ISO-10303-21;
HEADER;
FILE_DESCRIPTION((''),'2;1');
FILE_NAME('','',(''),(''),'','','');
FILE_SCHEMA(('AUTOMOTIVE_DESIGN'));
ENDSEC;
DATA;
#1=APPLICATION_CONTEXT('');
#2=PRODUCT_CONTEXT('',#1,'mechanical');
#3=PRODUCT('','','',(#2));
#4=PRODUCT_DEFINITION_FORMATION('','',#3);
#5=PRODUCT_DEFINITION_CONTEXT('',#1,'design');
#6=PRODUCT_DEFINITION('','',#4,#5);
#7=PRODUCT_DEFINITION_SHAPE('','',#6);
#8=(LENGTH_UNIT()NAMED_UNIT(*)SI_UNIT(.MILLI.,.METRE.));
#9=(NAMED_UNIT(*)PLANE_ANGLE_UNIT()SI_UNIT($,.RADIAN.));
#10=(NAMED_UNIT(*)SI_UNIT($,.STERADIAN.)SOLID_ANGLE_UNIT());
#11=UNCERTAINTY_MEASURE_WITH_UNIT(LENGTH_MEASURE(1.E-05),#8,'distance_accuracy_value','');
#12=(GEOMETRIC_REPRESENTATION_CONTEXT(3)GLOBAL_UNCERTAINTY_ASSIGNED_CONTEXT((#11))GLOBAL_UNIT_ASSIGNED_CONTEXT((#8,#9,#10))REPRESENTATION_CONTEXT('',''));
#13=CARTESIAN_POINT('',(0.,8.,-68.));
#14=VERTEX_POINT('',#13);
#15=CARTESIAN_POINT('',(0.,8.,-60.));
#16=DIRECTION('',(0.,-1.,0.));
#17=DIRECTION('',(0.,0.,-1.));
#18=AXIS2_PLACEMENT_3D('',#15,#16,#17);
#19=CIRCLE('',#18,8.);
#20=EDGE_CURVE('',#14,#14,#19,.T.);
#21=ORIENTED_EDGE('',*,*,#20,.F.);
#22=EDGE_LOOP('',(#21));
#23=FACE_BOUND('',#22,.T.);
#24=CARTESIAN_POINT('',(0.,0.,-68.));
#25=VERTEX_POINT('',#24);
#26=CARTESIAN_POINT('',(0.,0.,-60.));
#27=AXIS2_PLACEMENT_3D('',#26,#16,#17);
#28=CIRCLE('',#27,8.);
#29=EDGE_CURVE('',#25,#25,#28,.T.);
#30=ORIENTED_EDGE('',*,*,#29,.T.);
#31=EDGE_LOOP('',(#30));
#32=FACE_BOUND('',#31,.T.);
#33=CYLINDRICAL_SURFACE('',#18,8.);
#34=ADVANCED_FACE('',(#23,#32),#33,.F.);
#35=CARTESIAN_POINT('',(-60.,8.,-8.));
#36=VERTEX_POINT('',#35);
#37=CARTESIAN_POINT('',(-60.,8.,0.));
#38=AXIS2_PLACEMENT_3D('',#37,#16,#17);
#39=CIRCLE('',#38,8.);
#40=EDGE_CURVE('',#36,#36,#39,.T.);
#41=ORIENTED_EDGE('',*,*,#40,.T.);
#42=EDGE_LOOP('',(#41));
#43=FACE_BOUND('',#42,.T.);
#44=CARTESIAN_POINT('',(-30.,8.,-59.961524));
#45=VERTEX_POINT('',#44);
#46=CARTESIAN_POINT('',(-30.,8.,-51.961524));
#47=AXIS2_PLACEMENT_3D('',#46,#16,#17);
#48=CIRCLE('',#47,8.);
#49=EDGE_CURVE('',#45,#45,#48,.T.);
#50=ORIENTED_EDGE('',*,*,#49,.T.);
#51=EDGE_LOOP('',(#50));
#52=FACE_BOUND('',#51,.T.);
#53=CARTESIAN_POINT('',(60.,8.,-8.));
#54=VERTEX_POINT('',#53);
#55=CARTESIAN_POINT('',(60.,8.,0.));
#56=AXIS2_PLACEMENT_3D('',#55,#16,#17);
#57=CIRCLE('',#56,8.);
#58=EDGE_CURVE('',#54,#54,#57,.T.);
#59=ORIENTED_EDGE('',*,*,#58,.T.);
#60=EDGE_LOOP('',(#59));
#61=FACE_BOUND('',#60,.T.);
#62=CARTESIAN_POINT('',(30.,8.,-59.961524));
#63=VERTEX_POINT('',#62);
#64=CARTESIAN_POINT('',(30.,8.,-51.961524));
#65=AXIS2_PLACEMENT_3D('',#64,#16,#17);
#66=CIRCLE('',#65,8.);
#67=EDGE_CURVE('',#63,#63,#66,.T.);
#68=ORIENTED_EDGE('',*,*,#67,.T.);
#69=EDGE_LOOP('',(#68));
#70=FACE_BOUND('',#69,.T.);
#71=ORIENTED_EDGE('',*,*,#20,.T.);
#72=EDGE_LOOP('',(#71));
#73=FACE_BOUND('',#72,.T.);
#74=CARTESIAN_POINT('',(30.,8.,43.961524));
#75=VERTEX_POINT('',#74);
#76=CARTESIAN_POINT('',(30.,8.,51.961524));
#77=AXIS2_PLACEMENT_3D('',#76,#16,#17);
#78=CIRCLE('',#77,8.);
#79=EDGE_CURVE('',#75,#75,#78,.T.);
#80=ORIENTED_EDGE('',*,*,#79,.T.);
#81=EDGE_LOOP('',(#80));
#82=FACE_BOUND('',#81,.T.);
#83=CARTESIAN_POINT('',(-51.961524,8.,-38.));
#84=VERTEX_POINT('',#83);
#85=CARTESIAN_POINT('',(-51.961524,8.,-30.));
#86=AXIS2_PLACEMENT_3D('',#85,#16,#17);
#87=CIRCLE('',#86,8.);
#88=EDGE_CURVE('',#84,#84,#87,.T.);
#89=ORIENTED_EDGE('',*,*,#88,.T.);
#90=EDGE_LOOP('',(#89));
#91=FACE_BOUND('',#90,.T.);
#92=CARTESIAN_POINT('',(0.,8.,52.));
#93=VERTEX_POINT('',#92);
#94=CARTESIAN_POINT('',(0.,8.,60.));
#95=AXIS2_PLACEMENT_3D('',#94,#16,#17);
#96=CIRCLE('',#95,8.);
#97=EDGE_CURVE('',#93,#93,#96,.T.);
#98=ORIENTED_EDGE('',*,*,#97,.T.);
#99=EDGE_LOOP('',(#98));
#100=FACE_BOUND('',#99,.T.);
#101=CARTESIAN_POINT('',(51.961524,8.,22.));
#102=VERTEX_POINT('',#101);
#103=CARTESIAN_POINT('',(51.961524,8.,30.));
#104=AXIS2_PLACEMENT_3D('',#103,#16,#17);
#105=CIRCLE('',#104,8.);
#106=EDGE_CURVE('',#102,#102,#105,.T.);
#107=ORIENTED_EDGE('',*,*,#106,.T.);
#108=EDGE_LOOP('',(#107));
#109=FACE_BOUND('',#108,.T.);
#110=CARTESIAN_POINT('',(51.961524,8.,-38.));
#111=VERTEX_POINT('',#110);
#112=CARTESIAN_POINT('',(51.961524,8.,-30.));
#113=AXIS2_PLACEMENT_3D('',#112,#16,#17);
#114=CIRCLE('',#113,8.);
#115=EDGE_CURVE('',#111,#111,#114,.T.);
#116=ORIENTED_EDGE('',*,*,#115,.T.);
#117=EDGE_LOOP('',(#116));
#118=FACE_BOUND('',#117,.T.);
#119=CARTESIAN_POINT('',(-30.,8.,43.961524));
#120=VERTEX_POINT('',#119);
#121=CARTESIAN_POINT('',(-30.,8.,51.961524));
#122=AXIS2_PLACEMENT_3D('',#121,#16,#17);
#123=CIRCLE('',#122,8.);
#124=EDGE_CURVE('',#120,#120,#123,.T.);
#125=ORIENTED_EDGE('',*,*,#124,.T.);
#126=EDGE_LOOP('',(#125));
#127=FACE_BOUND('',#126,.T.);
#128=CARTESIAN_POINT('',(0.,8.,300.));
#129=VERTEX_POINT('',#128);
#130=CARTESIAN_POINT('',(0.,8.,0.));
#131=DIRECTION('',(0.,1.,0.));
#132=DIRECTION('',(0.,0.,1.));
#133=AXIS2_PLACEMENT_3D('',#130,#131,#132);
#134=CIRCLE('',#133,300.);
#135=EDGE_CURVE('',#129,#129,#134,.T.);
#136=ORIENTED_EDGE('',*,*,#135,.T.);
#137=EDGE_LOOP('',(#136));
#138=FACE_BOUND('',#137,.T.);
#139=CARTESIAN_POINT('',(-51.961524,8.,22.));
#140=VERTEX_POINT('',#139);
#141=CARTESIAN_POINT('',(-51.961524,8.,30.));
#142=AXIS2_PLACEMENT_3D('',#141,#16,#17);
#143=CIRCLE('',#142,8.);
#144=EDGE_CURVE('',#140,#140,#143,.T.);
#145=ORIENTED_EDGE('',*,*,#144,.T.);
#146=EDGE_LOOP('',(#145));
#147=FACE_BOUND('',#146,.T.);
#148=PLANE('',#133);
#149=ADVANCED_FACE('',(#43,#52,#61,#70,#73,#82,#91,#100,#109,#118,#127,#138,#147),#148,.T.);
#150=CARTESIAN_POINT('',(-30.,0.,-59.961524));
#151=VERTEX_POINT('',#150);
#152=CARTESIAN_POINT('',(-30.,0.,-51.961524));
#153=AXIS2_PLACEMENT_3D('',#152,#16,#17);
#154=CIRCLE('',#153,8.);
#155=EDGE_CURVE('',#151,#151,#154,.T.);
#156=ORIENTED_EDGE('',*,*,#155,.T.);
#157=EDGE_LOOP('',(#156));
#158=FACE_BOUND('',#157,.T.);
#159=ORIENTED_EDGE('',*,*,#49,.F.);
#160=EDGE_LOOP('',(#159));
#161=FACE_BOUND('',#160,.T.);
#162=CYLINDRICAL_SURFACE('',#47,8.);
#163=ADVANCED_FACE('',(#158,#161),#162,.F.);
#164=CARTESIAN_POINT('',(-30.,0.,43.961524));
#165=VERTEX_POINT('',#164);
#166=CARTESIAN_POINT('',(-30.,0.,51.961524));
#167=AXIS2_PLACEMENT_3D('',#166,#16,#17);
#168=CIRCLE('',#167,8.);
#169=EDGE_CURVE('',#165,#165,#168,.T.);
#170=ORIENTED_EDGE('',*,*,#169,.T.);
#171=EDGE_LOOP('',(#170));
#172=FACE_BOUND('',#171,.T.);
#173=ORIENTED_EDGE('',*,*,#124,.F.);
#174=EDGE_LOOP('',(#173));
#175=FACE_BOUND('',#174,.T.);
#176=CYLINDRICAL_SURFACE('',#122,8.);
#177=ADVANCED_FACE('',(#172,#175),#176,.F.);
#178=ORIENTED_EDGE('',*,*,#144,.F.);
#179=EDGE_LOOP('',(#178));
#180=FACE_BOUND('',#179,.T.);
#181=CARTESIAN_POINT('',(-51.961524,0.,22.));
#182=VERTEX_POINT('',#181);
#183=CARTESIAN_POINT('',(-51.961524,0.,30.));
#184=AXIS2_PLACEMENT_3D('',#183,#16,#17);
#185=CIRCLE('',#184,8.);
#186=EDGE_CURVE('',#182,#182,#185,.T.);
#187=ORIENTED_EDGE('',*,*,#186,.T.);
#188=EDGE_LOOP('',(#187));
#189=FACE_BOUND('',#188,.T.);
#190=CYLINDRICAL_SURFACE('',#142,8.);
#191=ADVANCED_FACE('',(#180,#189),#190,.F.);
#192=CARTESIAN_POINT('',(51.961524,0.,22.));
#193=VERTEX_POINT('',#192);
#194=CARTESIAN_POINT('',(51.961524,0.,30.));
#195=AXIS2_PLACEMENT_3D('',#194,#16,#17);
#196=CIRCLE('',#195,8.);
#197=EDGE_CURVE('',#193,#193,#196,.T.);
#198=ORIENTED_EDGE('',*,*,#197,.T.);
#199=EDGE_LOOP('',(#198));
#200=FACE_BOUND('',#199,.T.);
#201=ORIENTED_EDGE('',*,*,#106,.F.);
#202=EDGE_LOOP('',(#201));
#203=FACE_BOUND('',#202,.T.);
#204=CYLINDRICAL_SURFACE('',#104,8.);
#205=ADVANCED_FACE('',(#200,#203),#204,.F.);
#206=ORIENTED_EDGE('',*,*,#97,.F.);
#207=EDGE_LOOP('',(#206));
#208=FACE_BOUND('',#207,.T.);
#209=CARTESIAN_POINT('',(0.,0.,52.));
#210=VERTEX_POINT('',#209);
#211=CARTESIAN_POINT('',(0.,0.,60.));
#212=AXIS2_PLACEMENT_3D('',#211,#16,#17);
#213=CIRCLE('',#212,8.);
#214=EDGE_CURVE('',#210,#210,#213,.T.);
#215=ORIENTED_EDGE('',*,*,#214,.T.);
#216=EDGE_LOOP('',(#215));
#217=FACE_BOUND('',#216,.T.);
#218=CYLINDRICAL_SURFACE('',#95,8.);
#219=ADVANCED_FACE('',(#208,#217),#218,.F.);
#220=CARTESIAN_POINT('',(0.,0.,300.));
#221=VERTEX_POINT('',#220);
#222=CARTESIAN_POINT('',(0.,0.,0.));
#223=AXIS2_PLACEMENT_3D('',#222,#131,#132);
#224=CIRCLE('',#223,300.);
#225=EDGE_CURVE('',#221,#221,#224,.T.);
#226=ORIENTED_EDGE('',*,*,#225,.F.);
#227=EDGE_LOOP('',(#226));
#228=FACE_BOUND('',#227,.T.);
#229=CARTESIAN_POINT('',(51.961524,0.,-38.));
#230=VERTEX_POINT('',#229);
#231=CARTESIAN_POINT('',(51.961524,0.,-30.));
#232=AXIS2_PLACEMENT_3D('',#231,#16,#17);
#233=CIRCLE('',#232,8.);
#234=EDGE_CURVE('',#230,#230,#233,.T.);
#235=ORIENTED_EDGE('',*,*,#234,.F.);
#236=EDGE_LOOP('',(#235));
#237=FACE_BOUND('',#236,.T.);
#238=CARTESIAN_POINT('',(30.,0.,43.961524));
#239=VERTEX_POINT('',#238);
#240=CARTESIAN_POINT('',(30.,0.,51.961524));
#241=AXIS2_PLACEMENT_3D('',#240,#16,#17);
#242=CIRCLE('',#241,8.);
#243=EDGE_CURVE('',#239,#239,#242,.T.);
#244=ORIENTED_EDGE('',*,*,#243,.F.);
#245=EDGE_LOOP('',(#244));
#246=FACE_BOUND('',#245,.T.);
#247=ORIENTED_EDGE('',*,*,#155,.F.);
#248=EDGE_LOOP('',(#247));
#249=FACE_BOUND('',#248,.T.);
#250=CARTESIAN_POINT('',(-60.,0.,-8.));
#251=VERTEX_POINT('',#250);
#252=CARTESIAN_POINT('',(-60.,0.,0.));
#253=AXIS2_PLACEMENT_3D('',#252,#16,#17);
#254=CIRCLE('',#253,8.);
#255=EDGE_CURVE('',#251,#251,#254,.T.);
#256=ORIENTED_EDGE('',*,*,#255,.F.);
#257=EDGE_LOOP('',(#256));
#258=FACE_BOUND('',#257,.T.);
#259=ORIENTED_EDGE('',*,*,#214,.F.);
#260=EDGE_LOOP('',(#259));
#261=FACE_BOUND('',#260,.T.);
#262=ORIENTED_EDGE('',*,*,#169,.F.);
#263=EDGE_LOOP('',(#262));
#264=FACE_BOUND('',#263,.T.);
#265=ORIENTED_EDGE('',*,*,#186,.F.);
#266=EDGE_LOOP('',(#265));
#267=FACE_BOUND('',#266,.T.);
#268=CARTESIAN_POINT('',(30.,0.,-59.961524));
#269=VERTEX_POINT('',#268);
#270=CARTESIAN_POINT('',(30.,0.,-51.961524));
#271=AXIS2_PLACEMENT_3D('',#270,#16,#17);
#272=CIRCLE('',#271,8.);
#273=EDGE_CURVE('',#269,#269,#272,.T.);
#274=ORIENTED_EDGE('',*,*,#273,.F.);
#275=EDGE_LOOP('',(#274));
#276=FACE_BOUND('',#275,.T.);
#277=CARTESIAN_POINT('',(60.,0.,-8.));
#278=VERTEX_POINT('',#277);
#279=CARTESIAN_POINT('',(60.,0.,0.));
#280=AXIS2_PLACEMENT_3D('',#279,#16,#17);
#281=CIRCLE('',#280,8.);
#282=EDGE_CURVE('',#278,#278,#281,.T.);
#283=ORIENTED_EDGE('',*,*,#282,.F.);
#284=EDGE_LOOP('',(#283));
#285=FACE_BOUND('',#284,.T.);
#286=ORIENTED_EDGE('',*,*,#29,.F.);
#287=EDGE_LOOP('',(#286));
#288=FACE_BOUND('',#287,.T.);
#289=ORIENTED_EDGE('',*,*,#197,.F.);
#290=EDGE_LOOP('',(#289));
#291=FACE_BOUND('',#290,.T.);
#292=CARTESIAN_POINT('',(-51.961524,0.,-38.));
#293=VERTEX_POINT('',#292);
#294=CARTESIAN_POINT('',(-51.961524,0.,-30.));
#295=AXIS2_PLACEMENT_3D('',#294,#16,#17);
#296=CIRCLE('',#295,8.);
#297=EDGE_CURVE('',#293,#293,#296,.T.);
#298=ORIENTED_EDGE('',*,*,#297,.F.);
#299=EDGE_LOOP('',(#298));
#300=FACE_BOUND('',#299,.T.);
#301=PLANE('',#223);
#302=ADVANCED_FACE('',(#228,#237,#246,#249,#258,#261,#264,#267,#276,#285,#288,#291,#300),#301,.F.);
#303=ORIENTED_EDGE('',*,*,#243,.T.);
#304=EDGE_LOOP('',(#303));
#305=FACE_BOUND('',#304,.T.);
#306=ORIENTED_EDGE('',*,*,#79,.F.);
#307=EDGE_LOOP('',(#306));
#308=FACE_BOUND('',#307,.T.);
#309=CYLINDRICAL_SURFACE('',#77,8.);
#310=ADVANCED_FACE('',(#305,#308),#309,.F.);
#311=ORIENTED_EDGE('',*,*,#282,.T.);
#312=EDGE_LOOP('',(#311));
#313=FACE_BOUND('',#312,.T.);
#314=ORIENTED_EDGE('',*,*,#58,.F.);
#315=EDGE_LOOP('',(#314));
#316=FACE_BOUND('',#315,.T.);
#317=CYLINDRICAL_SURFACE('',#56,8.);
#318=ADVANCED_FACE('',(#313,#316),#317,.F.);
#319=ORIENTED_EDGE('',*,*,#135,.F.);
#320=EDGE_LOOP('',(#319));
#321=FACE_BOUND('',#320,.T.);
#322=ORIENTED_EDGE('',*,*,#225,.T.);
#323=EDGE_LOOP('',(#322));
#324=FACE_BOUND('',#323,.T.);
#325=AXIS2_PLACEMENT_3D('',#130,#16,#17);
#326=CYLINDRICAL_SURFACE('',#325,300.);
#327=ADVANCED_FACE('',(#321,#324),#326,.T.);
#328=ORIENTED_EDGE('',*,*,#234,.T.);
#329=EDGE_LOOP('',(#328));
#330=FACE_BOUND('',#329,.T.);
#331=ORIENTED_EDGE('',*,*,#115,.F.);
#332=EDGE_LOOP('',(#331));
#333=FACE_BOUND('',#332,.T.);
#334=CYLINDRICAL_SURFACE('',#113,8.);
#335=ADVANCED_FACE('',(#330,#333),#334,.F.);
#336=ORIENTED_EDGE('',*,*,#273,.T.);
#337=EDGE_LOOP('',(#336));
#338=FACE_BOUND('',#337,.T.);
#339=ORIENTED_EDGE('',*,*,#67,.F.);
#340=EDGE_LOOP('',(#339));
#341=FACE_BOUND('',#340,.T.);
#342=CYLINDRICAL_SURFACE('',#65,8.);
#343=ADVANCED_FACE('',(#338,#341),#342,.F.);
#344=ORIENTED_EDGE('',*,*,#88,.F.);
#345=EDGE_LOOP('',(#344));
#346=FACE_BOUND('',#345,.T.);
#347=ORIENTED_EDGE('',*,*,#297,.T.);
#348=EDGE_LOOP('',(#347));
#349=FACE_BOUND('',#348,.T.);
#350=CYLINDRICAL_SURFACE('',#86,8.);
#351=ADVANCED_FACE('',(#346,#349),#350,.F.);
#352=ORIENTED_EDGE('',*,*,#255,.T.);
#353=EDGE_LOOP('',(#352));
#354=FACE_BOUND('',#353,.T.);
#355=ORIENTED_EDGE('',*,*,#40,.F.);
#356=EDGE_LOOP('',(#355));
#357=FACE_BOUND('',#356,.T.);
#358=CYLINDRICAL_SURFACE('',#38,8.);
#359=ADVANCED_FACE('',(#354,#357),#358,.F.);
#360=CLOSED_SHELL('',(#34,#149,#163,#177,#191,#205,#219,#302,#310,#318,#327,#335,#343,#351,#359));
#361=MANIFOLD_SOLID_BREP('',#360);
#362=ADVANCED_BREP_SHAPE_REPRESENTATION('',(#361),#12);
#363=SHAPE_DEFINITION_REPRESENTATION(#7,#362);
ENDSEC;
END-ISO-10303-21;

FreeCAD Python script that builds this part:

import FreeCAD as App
import Part
import Sketcher
from FreeCAD import Vector

doc = App.newDocument("Part")
body = doc.addObject("PartDesign::Body", "Body")

# Sketch on XZ plane
sketch1 = doc.addObject("Sketcher::SketchObject", "Sketch")
body.addObject(sketch1)
sketch1.AttachmentSupport = (doc.XZ_Plane, [""])
sketch1.MapMode = "FlatFace"
sketch1.addGeometry(Part.Circle(Vector(0, 0, 0), Vector(0, 0, 1), 300), False)
sketch1.addConstraint(Sketcher.Constraint("Coincident", 0, 3, -1, 1))
sketch1.addConstraint(Sketcher.Constraint("Diameter", 0, 600.0))
pad1 = doc.addObject("PartDesign::Pad", "Pad")
body.addObject(pad1)
pad1.Profile = sketch1
pad1.Length = 8
pad1.Reversed = True

# Sketch on XZ plane
sketch2 = doc.addObject("Sketcher::SketchObject", "Sketch001")
body.addObject(sketch2)
sketch2.AttachmentSupport = (doc.XZ_Plane, [""])
sketch2.MapMode = "FlatFace"
sketch2.addGeometry(Part.Circle(Vector(0, 60, 0), Vector(0, 0, 1), 8), False)
sketch2.addGeometry(Part.Circle(Vector(30, 52, 0), Vector(0, 0, 1), 8), False)
sketch2.addGeometry(Part.Circle(Vector(52, 30, 0), Vector(0, 0, 1), 8), False)
sketch2.addGeometry(Part.Circle(Vector(60, 0, 0), Vector(0, 0, 1), 8), False)
sketch2.addGeometry(Part.Circle(Vector(52, -30, 0), Vector(0, 0, 1), 8), False)
sketch2.addGeometry(Part.Circle(Vector(30, -52, 0), Vector(0, 0, 1), 8), False)
sketch2.addGeometry(Part.Circle(Vector(0, -60, 0), Vector(0, 0, 1), 8), False)
sketch2.addGeometry(Part.Circle(Vector(-30, -52, 0), Vector(0, 0, 1), 8), False)
sketch2.addGeometry(Part.Circle(Vector(-52, -30, 0), Vector(0, 0, 1), 8), False)
sketch2.addGeometry(Part.Circle(Vector(-60, 0, 0), Vector(0, 0, 1), 8), False)
sketch2.addGeometry(Part.Circle(Vector(-52, 30, 0), Vector(0, 0, 1), 8), False)
sketch2.addGeometry(Part.Circle(Vector(-30, 52, 0), Vector(0, 0, 1), 8), False)
sketch2.addConstraint(Sketcher.Constraint("Equal", 0, 1))
sketch2.addConstraint(Sketcher.Constraint("Equal", 1, 2))
sketch2.addConstraint(Sketcher.Constraint("Equal", 2, 3))
sketch2.addConstraint(Sketcher.Constraint("Equal", 3, 4))
sketch2.addConstraint(Sketcher.Constraint("Equal", 4, 5))
sketch2.addConstraint(Sketcher.Constraint("Equal", 5, 6))
sketch2.addConstraint(Sketcher.Constraint("Equal", 6, 7))
sketch2.addConstraint(Sketcher.Constraint("Equal", 7, 8))
sketch2.addConstraint(Sketcher.Constraint("Equal", 8, 9))
sketch2.addConstraint(Sketcher.Constraint("Equal", 9, 10))
sketch2.addConstraint(Sketcher.Constraint("Equal", 10, 11))
sketch2.addConstraint(Sketcher.Constraint("Symmetric", 0, 3, 6, 3, -1, 1))
sketch2.addConstraint(Sketcher.Constraint("Symmetric", 1, 3, 7, 3, -1, 1))
sketch2.addConstraint(Sketcher.Constraint("Symmetric", 2, 3, 8, 3, -1, 1))
sketch2.addConstraint(Sketcher.Constraint("Symmetric", 3, 3, 9, 3, -1, 1))
sketch2.addConstraint(Sketcher.Constraint("Symmetric", 4, 3, 10, 3, -1, 1))
sketch2.addConstraint(Sketcher.Constraint("Symmetric", 5, 3, 11, 3, -1, 1))
sketch2.addConstraint(Sketcher.Constraint("Symmetric", 5, 3, 7, 3, -2))
sketch2.addConstraint(Sketcher.Constraint("Symmetric", 4, 3, 8, 3, -2))
sketch2.addConstraint(Sketcher.Constraint("PointOnObject", 0, 3, -2))
sketch2.addConstraint(Sketcher.Constraint("PointOnObject", 3, 3, -1))
sketch2.addConstraint(Sketcher.Constraint("Diameter", 0, 16.0))
sketch2.addConstraint(Sketcher.Constraint("DistanceY", -1, 1, 0, 3, 60.0))
sketch2.addConstraint(Sketcher.Constraint("DistanceX", -1, 1, 1, 3, 30.0))
sketch2.addConstraint(Sketcher.Constraint("DistanceY", -1, 1, 2, 3, 30.0))
sketch2.addConstraint(Sketcher.Constraint("DistanceX", -1, 1, 3, 3, 60.0))
sketch2.addConstraint(Sketcher.Constraint("DistanceY", 5, 3, 1, 3, 103.923048))
sketch2.addConstraint(Sketcher.Constraint("DistanceX", 8, 3, 4, 3, 103.923048))
pocket1 = doc.addObject("PartDesign::Pocket", "Pocket")
body.addObject(pocket1)
pocket1.Profile = sketch2
pocket1.Type = "ThroughAll"

doc.recompute()
